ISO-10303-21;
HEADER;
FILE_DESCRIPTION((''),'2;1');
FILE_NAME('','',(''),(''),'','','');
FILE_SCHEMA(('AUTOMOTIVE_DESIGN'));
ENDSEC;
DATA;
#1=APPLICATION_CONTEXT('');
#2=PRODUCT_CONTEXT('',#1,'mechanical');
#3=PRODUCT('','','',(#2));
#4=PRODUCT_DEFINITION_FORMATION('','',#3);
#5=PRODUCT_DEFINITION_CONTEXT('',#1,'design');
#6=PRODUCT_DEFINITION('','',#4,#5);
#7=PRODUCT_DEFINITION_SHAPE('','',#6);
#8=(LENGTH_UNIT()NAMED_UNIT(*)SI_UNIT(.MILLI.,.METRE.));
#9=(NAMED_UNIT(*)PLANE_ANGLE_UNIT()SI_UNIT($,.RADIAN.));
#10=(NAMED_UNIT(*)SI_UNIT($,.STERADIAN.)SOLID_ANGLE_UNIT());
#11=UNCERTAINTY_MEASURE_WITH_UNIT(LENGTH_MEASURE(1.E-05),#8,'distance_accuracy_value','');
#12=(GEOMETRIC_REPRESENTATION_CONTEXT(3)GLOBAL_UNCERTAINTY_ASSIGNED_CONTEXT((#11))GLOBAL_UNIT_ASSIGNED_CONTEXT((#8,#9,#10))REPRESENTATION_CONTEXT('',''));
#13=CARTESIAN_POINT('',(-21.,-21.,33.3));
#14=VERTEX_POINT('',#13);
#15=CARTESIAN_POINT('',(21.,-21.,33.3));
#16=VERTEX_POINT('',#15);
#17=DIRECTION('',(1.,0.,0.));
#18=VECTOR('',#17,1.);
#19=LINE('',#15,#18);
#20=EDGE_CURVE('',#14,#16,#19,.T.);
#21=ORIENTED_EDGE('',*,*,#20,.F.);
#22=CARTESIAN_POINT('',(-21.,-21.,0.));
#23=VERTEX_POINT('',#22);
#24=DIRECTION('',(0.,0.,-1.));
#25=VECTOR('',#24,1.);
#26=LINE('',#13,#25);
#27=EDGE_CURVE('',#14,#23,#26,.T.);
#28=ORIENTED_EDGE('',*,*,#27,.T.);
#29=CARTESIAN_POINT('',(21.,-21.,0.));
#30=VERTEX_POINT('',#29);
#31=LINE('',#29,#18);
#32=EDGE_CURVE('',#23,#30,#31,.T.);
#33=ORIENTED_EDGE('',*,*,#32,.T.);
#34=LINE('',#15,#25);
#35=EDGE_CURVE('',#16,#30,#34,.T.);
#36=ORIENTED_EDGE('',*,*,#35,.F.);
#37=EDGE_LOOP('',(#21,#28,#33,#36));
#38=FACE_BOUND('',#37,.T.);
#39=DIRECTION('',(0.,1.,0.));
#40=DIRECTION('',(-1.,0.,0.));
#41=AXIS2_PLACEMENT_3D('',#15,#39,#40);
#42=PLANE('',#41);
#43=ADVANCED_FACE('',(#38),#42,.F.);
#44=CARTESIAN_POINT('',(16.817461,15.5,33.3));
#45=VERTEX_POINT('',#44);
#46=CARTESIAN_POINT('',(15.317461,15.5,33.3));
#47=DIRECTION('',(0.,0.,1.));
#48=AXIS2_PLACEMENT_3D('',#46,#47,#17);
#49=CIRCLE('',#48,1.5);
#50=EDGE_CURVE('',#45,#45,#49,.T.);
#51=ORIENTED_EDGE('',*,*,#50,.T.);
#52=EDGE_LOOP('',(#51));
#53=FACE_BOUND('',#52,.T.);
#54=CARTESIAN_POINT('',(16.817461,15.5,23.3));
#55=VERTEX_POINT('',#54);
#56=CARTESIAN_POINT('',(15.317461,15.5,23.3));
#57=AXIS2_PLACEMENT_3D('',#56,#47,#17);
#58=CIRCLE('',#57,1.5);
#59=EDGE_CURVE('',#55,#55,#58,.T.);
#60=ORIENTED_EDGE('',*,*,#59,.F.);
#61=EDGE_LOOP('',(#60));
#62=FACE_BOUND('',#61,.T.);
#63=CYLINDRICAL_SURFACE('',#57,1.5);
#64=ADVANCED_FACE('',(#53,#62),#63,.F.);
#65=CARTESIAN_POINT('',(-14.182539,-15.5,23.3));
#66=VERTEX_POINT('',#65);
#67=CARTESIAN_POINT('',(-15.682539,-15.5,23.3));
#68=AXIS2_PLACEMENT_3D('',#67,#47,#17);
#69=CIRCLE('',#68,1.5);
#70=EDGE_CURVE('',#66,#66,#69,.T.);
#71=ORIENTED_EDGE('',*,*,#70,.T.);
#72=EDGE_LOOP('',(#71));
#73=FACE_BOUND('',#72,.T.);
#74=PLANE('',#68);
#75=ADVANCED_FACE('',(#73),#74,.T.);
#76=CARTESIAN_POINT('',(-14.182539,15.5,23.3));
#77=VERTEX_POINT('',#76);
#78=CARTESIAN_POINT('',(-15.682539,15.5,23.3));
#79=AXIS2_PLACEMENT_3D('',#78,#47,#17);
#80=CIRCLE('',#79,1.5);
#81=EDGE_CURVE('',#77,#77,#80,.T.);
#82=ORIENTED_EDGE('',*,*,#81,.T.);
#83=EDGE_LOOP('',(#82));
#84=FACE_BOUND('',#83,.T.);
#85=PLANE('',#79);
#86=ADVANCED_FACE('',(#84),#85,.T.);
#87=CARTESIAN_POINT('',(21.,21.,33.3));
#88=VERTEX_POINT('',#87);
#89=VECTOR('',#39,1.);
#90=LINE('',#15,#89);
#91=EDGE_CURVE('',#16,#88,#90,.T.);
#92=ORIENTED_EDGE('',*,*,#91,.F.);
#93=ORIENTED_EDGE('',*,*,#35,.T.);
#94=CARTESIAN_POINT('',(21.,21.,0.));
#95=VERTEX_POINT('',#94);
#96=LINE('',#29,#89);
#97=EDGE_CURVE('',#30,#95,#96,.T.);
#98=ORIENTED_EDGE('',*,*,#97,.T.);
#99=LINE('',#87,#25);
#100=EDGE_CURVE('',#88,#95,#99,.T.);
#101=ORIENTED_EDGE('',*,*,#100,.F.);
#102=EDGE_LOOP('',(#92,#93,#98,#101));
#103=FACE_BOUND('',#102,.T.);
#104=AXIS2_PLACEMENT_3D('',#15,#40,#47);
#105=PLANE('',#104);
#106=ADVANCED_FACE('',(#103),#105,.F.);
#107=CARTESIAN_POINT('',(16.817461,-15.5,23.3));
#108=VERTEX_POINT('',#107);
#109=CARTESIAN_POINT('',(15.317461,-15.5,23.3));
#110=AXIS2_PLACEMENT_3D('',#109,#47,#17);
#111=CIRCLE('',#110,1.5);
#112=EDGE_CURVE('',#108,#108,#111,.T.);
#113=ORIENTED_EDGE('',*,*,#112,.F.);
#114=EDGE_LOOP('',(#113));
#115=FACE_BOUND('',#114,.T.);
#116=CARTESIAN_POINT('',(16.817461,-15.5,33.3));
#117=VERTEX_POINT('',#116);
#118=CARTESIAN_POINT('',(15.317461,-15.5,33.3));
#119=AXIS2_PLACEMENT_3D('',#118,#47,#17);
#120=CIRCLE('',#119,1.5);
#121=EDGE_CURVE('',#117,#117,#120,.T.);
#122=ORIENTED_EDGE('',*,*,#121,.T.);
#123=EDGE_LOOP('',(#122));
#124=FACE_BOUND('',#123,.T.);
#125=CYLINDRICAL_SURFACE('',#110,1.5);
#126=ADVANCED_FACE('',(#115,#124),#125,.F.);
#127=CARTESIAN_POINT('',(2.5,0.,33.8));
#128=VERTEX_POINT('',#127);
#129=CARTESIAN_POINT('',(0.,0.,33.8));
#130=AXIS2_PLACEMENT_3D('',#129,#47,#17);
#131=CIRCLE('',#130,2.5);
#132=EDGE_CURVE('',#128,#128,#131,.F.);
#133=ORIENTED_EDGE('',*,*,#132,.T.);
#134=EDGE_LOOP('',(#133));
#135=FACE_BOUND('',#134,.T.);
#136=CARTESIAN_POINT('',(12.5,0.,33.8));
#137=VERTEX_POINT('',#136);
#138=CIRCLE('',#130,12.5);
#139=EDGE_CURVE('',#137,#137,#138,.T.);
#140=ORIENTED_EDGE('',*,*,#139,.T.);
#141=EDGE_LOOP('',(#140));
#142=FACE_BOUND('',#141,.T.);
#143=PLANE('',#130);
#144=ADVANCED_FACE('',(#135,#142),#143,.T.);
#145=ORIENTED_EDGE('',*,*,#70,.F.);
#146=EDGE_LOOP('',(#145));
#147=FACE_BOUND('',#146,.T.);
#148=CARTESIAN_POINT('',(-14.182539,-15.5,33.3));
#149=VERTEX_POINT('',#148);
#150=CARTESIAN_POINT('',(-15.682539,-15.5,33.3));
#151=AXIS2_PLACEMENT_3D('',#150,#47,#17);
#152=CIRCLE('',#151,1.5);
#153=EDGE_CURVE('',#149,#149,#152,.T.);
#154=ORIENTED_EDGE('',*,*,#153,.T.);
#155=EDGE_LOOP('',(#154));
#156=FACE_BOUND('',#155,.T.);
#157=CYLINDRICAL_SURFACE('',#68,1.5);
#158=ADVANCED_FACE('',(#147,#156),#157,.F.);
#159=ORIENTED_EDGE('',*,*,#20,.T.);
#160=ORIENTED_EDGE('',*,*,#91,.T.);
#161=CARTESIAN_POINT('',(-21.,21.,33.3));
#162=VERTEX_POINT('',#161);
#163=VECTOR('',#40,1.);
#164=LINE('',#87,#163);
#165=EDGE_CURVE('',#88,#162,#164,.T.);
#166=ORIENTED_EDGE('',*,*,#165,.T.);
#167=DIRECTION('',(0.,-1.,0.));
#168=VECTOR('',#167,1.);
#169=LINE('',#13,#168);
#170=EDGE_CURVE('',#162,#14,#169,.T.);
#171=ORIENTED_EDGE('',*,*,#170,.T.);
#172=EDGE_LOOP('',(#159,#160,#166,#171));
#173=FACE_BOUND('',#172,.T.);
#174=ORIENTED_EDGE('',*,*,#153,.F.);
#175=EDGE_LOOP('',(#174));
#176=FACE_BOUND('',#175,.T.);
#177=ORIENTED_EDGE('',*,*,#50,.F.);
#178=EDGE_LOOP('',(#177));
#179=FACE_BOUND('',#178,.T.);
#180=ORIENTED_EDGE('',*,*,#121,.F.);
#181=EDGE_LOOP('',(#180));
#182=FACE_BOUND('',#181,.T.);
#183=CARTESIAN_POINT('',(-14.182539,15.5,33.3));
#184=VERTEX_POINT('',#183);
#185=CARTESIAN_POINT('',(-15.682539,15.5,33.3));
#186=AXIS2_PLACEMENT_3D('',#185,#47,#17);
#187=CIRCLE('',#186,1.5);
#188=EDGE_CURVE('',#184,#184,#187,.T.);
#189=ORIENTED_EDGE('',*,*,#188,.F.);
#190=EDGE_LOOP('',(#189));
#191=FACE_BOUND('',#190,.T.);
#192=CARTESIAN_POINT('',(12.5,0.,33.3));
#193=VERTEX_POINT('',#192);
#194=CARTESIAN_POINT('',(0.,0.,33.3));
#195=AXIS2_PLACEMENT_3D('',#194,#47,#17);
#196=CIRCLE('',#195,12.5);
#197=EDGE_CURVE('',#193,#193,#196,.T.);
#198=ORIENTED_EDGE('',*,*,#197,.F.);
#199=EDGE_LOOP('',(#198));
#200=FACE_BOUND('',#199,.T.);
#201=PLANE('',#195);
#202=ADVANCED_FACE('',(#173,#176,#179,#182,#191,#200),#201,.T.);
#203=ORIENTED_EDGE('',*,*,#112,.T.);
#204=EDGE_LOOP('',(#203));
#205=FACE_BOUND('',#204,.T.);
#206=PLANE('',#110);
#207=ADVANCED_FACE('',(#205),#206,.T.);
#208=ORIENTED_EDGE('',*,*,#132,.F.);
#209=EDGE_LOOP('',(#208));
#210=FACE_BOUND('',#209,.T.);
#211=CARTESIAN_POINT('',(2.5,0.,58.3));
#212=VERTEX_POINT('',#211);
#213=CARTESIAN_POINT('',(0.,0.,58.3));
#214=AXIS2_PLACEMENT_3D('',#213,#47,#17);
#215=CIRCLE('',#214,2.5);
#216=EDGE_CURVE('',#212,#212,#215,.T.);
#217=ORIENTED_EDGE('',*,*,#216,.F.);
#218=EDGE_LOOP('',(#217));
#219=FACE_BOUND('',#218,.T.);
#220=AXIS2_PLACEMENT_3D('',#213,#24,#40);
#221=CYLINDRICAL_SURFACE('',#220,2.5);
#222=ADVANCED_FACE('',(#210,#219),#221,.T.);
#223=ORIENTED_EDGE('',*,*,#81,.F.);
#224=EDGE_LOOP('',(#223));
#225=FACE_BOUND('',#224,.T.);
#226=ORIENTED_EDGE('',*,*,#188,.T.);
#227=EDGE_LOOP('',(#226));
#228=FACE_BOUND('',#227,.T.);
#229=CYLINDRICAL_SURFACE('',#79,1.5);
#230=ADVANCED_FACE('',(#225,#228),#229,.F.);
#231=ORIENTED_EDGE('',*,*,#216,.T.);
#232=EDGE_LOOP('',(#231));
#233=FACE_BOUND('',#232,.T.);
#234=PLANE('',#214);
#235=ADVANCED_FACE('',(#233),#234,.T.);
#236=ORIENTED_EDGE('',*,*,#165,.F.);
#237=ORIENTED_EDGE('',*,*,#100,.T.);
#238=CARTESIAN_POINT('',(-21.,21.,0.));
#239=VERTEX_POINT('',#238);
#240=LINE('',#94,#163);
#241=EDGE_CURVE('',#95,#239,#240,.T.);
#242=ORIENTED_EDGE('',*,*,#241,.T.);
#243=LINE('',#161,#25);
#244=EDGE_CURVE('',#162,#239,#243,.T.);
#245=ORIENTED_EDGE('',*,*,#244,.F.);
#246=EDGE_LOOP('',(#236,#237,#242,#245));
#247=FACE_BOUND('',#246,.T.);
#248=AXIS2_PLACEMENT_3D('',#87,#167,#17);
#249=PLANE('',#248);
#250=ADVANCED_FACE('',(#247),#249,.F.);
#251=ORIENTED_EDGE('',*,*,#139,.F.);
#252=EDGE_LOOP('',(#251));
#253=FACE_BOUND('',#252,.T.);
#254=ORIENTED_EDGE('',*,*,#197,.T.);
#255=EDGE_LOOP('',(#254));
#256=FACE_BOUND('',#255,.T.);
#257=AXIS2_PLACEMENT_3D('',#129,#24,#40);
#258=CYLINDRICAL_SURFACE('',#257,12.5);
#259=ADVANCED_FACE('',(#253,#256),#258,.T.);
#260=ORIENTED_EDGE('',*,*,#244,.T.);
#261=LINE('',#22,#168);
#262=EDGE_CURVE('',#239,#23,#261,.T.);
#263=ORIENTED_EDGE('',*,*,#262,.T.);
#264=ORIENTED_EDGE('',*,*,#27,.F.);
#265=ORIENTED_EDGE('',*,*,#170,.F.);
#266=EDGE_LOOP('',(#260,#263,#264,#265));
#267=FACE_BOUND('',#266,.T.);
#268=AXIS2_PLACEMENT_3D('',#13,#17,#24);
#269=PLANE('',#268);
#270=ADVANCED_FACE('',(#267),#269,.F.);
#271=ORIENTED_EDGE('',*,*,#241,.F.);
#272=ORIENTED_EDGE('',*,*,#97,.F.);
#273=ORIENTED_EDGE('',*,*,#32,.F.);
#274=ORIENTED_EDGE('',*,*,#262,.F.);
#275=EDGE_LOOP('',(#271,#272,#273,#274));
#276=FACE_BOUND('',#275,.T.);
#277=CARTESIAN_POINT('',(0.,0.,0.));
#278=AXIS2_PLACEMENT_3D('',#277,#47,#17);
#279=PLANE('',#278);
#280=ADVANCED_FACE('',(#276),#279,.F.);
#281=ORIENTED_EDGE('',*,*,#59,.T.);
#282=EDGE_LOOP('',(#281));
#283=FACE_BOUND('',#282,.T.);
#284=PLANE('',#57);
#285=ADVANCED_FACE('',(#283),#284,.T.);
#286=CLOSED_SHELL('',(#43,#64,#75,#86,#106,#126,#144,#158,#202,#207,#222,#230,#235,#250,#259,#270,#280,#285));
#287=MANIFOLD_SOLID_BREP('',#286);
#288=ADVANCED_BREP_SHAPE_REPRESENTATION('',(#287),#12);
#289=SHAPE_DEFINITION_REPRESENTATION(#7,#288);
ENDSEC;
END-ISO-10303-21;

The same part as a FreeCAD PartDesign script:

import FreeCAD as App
import Part
import Sketcher
from FreeCAD import Vector

doc = App.newDocument("Part")
body = doc.addObject("PartDesign::Body", "Body")

sketch1 = body.newObject("Sketcher::SketchObject", "Sketch")
sketch1.AttachmentSupport = (doc.getObject("XY_Plane"), [""])
sketch1.MapMode = "FlatFace"
sketch1.addGeometry(Part.LineSegment(Vector(-21, 21, 0), Vector(-21, -21, 0)), False)
sketch1.addGeometry(Part.LineSegment(Vector(-21, -21, 0), Vector(21, -21, 0)), False)
sketch1.addGeometry(Part.LineSegment(Vector(21, -21, 0), Vector(21, 21, 0)), False)
sketch1.addGeometry(Part.LineSegment(Vector(21, 21, 0), Vector(-21, 21, 0)), False)
sketch1.addConstraint(Sketcher.Constraint("Coincident", 0, 2, 1, 1))
sketch1.addConstraint(Sketcher.Constraint("Coincident", 1, 2, 2, 1))
sketch1.addConstraint(Sketcher.Constraint("Coincident", 2, 2, 3, 1))
sketch1.addConstraint(Sketcher.Constraint("Coincident", 3, 2, 0, 1))
sketch1.addConstraint(Sketcher.Constraint("Vertical", 0))
sketch1.addConstraint(Sketcher.Constraint("Horizontal", 1))
sketch1.addConstraint(Sketcher.Constraint("Vertical", 2))
sketch1.addConstraint(Sketcher.Constraint("Horizontal", 3))
sketch1.addConstraint(Sketcher.Constraint("Symmetric", 0, 2, 2, 2, -1, 1))
sketch1.addConstraint(Sketcher.Constraint("Equal", 3, 0))
sketch1.addConstraint(Sketcher.Constraint("DistanceX", 1, 1, 1, 2, 42.0))
pad1 = body.newObject("PartDesign::Pad", "Pad")
pad1.Profile = sketch1
pad1.Length = 33.3

sketch2 = body.newObject("Sketcher::SketchObject", "Sketch001")
sketch2.AttachmentSupport = (doc.getObject("XY_Plane"), [""])
sketch2.MapMode = "FlatFace"
sketch2.AttachmentOffset = App.Placement(Vector(0, 0, 33.3), App.Rotation())
sketch2.addGeometry(Part.Circle(Vector(0, 0, 0), Vector(0, 0, 1), 12), False)
sketch2.addConstraint(Sketcher.Constraint("Coincident", 0, 3, -1, 1))
sketch2.addConstraint(Sketcher.Constraint("Diameter", 0, 25.0))
pad2 = body.newObject("PartDesign::Pad", "Pad001")
pad2.Profile = sketch2
pad2.Length = 0.5

sketch3 = body.newObject("Sketcher::SketchObject", "Sketch002")
sketch3.AttachmentSupport = (doc.getObject("XY_Plane"), [""])
sketch3.MapMode = "FlatFace"
sketch3.AttachmentOffset = App.Placement(Vector(0, 0, 33.3), App.Rotation())
sketch3.addGeometry(Part.Circle(Vector(-15.7, 15.5, 0), Vector(0, 0, 1), 1.5), False)
sketch3.addGeometry(Part.Circle(Vector(-15.7, -15.5, 0), Vector(0, 0, 1), 1.5), False)
sketch3.addGeometry(Part.Circle(Vector(15.3, -15.5, 0), Vector(0, 0, 1), 1.5), False)
sketch3.addGeometry(Part.Circle(Vector(15.3, 15.5, 0), Vector(0, 0, 1), 1.5), False)
sketch3.addConstraint(Sketcher.Constraint("Equal", 0, 1))
sketch3.addConstraint(Sketcher.Constraint("Equal", 1, 2))
sketch3.addConstraint(Sketcher.Constraint("Equal", 2, 3))
sketch3.addConstraint(Sketcher.Constraint("Symmetric", 0, 3, 1, 3, -1))
sketch3.addConstraint(Sketcher.Constraint("Symmetric", 2, 3, 3, 3, -1))
sketch3.addConstraint(Sketcher.Constraint("Horizontal", 1, 3, 2, 3))
sketch3.addConstraint(Sketcher.Constraint("Diameter", 0, 3.0))
sketch3.addConstraint(Sketcher.Constraint("DistanceY", 1, 3, 0, 3, 31.0))
sketch3.addConstraint(Sketcher.Constraint("DistanceX", 1, 3, 2, 3, 31.0))
sketch3.addConstraint(Sketcher.Constraint("DistanceX", 0, 3, -1, 1, 15.682539))
pocket1 = body.newObject("PartDesign::Pocket", "Pocket")
pocket1.Profile = sketch3
pocket1.Length = 10

sketch4 = body.newObject("Sketcher::SketchObject", "Sketch003")
sketch4.AttachmentSupport = (doc.getObject("XY_Plane"), [""])
sketch4.MapMode = "FlatFace"
sketch4.AttachmentOffset = App.Placement(Vector(0, 0, 33.3), App.Rotation())
sketch4.addGeometry(Part.Circle(Vector(0, 0, 0), Vector(0, 0, 1), 2.5), False)
sketch4.addConstraint(Sketcher.Constraint("Coincident", 0, 3, -1, 1))
sketch4.addConstraint(Sketcher.Constraint("Diameter", 0, 5.0))
pad3 = body.newObject("PartDesign::Pad", "Pad002")
pad3.Profile = sketch4
pad3.Length = 25

doc.recompute()
